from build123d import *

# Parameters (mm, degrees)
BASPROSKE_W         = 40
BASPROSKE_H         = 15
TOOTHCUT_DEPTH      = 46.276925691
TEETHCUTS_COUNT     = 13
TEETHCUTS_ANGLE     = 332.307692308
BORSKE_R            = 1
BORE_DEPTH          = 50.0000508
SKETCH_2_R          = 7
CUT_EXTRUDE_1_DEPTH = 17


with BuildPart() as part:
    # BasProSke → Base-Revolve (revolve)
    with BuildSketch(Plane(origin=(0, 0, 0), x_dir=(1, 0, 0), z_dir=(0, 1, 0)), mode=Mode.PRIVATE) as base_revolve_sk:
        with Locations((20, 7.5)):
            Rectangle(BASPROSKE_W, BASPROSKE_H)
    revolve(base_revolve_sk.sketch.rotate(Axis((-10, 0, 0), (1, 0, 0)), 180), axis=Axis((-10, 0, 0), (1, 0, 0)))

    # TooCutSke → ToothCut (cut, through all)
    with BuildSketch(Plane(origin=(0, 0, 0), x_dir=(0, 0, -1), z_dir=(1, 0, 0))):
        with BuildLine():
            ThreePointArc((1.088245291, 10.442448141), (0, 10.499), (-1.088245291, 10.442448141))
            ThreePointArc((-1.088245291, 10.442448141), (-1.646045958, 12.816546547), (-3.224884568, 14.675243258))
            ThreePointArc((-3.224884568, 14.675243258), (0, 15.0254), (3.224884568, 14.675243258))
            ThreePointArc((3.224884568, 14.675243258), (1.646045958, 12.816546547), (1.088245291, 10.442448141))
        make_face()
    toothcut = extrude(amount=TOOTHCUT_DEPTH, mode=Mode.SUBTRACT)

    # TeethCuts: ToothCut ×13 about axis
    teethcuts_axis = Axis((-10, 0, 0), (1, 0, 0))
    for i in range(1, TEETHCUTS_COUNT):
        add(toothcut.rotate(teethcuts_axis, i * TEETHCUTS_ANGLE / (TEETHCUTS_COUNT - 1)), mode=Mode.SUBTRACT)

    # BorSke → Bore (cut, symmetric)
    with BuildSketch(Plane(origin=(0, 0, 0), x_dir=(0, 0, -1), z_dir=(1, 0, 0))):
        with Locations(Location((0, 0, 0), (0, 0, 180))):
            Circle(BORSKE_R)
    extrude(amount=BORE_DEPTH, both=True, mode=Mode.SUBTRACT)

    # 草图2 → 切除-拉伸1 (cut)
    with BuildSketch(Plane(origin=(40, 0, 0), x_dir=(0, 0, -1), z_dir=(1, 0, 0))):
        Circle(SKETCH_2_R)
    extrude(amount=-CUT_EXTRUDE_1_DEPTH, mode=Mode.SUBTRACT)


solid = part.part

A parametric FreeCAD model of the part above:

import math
import FreeCAD as App
import Part
import Sketcher
from FreeCAD import Vector
Q = App.Units.Quantity

doc = App.newDocument("Part")
body = doc.addObject("PartDesign::Body", "Body")

sketch1 = body.newObject("Sketcher::SketchObject", "Sketch")
sketch1.AttachmentSupport = (doc.getObject("XZ_Plane"), [""])
sketch1.MapMode = "FlatFace"
sketch1.addGeometry([
    Part.LineSegment(Vector(0, -15, 0), Vector(0, 0, 0)),
    Part.LineSegment(Vector(0, 0, 0), Vector(40, 0, 0)),
    Part.LineSegment(Vector(40, 0, 0), Vector(40, -15, 0)),
    Part.LineSegment(Vector(40, -15, 0), Vector(0, -15, 0)),
], False)
sketch1.addConstraint([
    Sketcher.Constraint("Coincident", 0, 2, 1, 1),
    Sketcher.Constraint("Coincident", 1, 2, 2, 1),
    Sketcher.Constraint("Coincident", 2, 2, 3, 1),
    Sketcher.Constraint("Coincident", 3, 2, 0, 1),
    Sketcher.Constraint("Vertical", 0),
    Sketcher.Constraint("Horizontal", 1),
    Sketcher.Constraint("Vertical", 2),
    Sketcher.Constraint("Horizontal", 3),
    Sketcher.Constraint("Coincident", 0, 2, -1, 1),
    Sketcher.Constraint("DistanceX", 1, 1, 1, 2, Q("40 mm")),
    Sketcher.Constraint("DistanceY", 0, 1, 0, 2, Q("15 mm")),
])
revolution = body.newObject("PartDesign::Revolution", "Revolution")
revolution.Profile = sketch1
revolution.ReferenceAxis = (sketch1, ["H_Axis"])
revolution.Angle = 360

sketch2 = body.newObject("Sketcher::SketchObject", "Sketch001")
sketch2.AttachmentSupport = (doc.getObject("YZ_Plane"), [""])
sketch2.MapMode = "FlatFace"
sketch2.addGeometry([
    Part.ArcOfCircle(Part.Circle(Vector(0, 0, 0), Vector(0, 0, 1), 10.5), math.radians(-5.95), math.radians(5.95)),
    Part.ArcOfCircle(Part.Circle(Vector(10.5, -6.3, 0), Vector(0, 0, 1), 5.2), math.radians(36), math.radians(90)),
    Part.ArcOfCircle(Part.Circle(Vector(0, 0, 0), Vector(0, 0, 1), 15), math.radians(-12), math.radians(12)),
    Part.ArcOfCircle(Part.Circle(Vector(10.5, 6.3, 0), Vector(0, 0, 1), 5.2), math.radians(-90), math.radians(-36)),
], False)
sketch2.addConstraint([
    Sketcher.Constraint("Coincident", 0, 1, 1, 2),
    Sketcher.Constraint("Coincident", 1, 1, 2, 1),
    Sketcher.Constraint("Coincident", 2, 2, 3, 2),
    Sketcher.Constraint("Coincident", 3, 1, 0, 2),
    Sketcher.Constraint("Coincident", 0, 3, -1, 1),
    Sketcher.Constraint("Coincident", 2, 3, -1, 1),
    Sketcher.Constraint("Equal", 1, 3),
    Sketcher.Constraint("Symmetric", 1, 3, 3, 3, -1),
    Sketcher.Constraint("Radius", 1, Q("5.2 mm")),
    Sketcher.Constraint("Radius", 0, Q("10.499 mm")),
    Sketcher.Constraint("Radius", 2, Q("15.0254 mm")),
    Sketcher.Constraint("DistanceY", 0, 1, 3, 3, Q("7.376399 mm")),
    Sketcher.Constraint("DistanceY", 1, 1, 0, 1, Q("2.136639 mm")),
])
pocket1 = body.newObject("PartDesign::Pocket", "Pocket")
pocket1.Profile = sketch2
pocket1.Type = "ThroughAll"
pocket1.Reversed = True
doc.recompute()

polarpattern = body.newObject("PartDesign::PolarPattern", "PolarPattern")
polarpattern.Originals = [pocket1]
polarpattern.Axis = (doc.getObject("X_Axis"), [""])
polarpattern.Angle = 360
polarpattern.Occurrences = 13
body.Tip = polarpattern

sketch3 = body.newObject("Sketcher::SketchObject", "Sketch002")
sketch3.AttachmentSupport = (doc.getObject("YZ_Plane"), [""])
sketch3.MapMode = "FlatFace"
sketch3.addGeometry(Part.Circle(Vector(0, 0, 0), Vector(0, 0, 1), 1), False)
sketch3.addConstraint([
    Sketcher.Constraint("Coincident", 0, 3, -1, 1),
    Sketcher.Constraint("Diameter", 0, Q("2 mm")),
])
pocket2 = body.newObject("PartDesign::Pocket", "Pocket001")
pocket2.Profile = sketch3
pocket2.Length = 100.000102
pocket2.Midplane = True

sketch4 = body.newObject("Sketcher::SketchObject", "Sketch003")
sketch4.AttachmentSupport = (doc.getObject("YZ_Plane"), [""])
sketch4.MapMode = "FlatFace"
sketch4.AttachmentOffset = App.Placement(Vector(0, 0, 40), App.Rotation())
sketch4.addGeometry(Part.Circle(Vector(0, 0, 0), Vector(0, 0, 1), 7), False)
sketch4.addConstraint([
    Sketcher.Constraint("Coincident", 0, 3, -1, 1),
    Sketcher.Constraint("Diameter", 0, Q("14 mm")),
])
pocket3 = body.newObject("PartDesign::Pocket", "Pocket002")
pocket3.Profile = sketch4
pocket3.Length = 17

doc.recompute()
